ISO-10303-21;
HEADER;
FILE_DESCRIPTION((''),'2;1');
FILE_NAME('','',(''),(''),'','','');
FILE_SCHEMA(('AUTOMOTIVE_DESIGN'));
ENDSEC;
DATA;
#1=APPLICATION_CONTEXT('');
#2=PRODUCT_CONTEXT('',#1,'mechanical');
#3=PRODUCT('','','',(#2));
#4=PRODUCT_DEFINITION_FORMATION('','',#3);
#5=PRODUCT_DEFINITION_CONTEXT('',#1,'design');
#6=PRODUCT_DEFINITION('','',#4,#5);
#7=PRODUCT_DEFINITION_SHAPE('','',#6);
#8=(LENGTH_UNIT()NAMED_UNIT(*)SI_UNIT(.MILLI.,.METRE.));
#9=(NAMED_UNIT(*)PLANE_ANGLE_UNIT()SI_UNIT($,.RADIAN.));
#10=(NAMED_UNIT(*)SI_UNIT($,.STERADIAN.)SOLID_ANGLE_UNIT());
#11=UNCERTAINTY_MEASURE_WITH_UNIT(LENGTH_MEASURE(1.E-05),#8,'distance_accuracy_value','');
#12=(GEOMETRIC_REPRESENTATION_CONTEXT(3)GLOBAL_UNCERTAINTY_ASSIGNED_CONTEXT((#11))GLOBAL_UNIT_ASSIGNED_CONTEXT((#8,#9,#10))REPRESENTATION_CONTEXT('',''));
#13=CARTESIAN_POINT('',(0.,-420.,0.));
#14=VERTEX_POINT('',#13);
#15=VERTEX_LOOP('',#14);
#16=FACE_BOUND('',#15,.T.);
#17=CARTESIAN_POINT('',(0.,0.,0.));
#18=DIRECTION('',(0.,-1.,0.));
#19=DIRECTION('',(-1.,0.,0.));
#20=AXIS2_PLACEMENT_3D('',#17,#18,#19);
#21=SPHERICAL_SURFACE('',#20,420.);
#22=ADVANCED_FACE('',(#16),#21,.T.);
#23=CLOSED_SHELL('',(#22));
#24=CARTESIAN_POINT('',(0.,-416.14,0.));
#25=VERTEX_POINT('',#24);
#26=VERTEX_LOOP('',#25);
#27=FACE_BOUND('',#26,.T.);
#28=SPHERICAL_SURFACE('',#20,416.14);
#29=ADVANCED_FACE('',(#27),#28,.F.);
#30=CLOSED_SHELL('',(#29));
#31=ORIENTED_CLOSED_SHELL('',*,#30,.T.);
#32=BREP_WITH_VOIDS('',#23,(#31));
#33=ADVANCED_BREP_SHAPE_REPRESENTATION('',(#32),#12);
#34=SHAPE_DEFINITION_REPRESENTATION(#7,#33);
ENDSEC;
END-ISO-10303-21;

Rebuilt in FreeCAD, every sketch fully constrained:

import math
import FreeCAD as App
import Part
import Sketcher

V = App.Vector

doc = App.newDocument("Part")
params = doc.addObject("Spreadsheet::Sheet", "Params")
for row, (alias, value) in enumerate([
    ("sketch1_radius", "420 mm"),
    ("sketch1_radius2", "416.14 mm"),
    ("revolution_angle", "360 deg"),
], start=1):
    params.set(f"A{row}", alias)
    params.set(f"B{row}", "=" + value)
    params.setAlias(f"B{row}", alias)

body = doc.addObject("PartDesign::Body", "Body")

# Sketch on XY plane
sketch1 = doc.addObject("Sketcher::SketchObject", "Sketch")
body.addObject(sketch1)
sketch1.AttachmentSupport = (doc.XY_Plane, [""])
sketch1.MapMode = "FlatFace"
sketch1.addGeometry([
    Part.LineSegment(V(0, 416.14, 0), V(0, 420, 0)),
    Part.ArcOfCircle(Part.Circle(V(0, 0, 0), V(0, 0, 1), 420), math.radians(90), math.radians(270)),
    Part.LineSegment(V(0, -420, 0), V(0, -416.14, 0)),
    Part.ArcOfCircle(Part.Circle(V(0, 0, 0), V(0, 0, 1), 416.14), math.radians(90), math.radians(270)),
], False)
sketch1.addConstraint([
    Sketcher.Constraint("Coincident", 0, 2, 1, 1),
    Sketcher.Constraint("Coincident", 1, 2, 2, 1),
    Sketcher.Constraint("Coincident", 2, 2, 3, 2),
    Sketcher.Constraint("Coincident", 3, 1, 0, 1),
    Sketcher.Constraint("Vertical", 0),
    Sketcher.Constraint("Vertical", 2),
    Sketcher.Constraint("Coincident", 1, 3, -1, 1),
    Sketcher.Constraint("Coincident", 3, 3, -1, 1),
    Sketcher.Constraint("PointOnObject", 0, 2, -2),
    Sketcher.Constraint("PointOnObject", 2, 2, -2),
    Sketcher.Constraint("Radius", 1, 420.0),
    Sketcher.Constraint("Radius", 3, 416.14),
])
sketch1.setExpression("Constraints[10]", "Params.sketch1_radius")
sketch1.setExpression("Constraints[11]", "Params.sketch1_radius2")
revolution = doc.addObject("PartDesign::Revolution", "Revolution")
body.addObject(revolution)
revolution.Profile = sketch1
revolution.ReferenceAxis = (sketch1, ["V_Axis"])
revolution.setExpression("Angle", "Params.revolution_angle")

doc.recompute()
